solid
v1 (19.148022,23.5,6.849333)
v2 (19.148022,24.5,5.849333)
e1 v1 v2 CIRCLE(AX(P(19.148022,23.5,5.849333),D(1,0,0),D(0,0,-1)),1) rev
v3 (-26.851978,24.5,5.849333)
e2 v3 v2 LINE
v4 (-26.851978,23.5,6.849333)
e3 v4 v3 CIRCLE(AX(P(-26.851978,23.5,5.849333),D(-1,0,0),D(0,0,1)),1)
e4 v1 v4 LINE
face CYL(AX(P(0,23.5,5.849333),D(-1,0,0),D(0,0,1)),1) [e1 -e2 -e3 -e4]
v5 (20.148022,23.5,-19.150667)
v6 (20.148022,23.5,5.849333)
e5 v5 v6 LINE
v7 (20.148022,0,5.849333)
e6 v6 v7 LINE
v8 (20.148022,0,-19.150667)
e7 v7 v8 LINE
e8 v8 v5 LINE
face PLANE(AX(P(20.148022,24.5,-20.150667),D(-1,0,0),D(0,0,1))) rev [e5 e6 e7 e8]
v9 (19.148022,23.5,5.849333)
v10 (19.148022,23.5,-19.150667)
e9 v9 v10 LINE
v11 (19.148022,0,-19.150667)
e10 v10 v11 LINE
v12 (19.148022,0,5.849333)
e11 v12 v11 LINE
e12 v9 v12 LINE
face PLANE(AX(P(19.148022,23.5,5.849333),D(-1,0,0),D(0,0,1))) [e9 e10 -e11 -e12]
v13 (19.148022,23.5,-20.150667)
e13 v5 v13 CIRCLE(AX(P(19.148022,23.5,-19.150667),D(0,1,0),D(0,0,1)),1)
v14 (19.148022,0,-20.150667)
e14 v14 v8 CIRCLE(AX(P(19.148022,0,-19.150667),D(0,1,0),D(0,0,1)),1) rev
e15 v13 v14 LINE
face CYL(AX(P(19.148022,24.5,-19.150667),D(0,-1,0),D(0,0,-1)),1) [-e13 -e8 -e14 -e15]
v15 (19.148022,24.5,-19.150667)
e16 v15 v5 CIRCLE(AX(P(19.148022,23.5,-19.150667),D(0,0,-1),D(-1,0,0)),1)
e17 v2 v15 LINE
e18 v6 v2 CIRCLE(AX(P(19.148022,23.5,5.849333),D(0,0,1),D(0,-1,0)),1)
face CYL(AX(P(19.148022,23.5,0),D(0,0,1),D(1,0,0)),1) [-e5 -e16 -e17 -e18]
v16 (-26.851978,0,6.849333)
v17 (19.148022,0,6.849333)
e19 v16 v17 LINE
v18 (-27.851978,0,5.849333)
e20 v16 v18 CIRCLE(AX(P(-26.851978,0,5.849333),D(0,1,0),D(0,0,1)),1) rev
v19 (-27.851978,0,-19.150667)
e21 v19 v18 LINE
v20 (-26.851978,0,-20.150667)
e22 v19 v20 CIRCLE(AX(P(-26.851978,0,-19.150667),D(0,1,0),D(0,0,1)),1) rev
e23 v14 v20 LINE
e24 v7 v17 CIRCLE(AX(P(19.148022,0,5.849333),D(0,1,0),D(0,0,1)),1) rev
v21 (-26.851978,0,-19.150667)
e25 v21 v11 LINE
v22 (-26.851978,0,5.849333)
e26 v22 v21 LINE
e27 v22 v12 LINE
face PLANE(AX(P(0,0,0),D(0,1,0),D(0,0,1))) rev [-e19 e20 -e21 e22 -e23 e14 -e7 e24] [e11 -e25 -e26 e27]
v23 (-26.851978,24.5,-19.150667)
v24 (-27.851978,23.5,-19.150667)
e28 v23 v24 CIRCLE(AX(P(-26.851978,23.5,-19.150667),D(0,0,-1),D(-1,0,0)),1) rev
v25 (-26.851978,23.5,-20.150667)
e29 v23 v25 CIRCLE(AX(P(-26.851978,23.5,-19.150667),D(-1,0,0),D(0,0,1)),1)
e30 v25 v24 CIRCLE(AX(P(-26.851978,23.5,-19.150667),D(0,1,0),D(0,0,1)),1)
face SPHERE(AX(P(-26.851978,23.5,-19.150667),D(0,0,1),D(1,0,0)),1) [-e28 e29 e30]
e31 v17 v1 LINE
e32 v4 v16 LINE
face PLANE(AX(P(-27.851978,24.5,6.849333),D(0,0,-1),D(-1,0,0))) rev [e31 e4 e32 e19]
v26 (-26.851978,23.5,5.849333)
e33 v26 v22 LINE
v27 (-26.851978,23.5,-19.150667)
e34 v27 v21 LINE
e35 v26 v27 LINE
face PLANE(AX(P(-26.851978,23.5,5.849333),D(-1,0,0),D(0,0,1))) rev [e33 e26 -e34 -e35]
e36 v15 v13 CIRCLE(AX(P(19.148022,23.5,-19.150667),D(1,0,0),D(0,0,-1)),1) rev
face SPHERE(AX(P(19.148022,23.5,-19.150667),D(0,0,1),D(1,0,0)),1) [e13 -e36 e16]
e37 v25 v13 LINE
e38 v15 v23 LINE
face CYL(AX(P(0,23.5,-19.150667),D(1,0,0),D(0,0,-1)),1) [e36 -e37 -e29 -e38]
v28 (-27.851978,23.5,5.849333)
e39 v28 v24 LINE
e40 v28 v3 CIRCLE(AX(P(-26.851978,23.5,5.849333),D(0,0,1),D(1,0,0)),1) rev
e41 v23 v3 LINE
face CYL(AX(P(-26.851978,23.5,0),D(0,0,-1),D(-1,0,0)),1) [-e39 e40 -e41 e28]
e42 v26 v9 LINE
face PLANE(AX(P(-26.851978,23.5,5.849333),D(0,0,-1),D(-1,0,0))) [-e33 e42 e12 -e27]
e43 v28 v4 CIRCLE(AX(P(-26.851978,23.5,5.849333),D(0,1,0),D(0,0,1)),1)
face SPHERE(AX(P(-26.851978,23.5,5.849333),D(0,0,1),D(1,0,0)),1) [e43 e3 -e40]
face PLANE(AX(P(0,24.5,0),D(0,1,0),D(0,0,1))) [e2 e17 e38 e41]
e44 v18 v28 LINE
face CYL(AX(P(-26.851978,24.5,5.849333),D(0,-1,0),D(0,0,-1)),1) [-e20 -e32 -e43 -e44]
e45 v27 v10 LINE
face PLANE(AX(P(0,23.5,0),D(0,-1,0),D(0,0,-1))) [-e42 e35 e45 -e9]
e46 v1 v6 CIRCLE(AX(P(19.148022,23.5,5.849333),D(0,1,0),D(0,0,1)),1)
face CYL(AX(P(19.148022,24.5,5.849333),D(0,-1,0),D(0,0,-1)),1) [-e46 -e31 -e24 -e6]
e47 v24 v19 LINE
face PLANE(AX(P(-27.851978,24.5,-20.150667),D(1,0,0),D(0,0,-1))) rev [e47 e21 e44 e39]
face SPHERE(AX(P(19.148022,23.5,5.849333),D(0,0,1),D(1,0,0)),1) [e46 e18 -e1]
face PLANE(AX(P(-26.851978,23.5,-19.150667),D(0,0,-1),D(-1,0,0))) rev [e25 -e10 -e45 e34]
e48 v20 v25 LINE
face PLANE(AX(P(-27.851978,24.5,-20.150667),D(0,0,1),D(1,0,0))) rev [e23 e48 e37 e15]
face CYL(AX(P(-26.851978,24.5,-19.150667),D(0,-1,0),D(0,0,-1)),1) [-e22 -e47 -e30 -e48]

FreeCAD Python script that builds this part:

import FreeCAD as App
import Part
import Sketcher

V = App.Vector
Q = App.Units.Quantity


def edges_at(feature, points):
    """Names of the edges that pass closest to the given points."""
    edges = feature.Shape.Edges
    near = lambda p: min(range(len(edges)), key=lambda i: edges[i].distToShape(Part.Vertex(*p))[0])
    return sorted({f"Edge{near(p) + 1}" for p in points})


def add_polygon(sketch, points):
    """Adds a closed chain of lines whose ends are joined by coincident constraints."""
    first, n = sketch.GeometryCount, len(points)
    for a, b in zip(points, points[1:] + points[:1]):
        sketch.addGeometry(Part.LineSegment(App.Vector(*a, 0), App.Vector(*b, 0)), False)
    for i in range(n):
        sketch.addConstraint(Sketcher.Constraint("Coincident", first + i, 2, first + (i + 1) % n, 1))

doc = App.newDocument("Part")
body = doc.addObject("PartDesign::Body", "Body")

# Sketch on XZ plane
sketch1 = body.newObject("Sketcher::SketchObject", "Sketch")
sketch1.AttachmentSupport = (doc.getObject("XZ_Plane"), [""])
sketch1.MapMode = "FlatFace"
add_polygon(sketch1, [(-27.851978, -20.150667), (-27.851978, 6.849333), (20.148022, 6.849333), (20.148022, -20.150667)])  # lines 0-3
sketch1.addConstraint([
    Sketcher.Constraint("Vertical", 0),
    Sketcher.Constraint("Horizontal", 1),
    Sketcher.Constraint("Vertical", 2),
    Sketcher.Constraint("Horizontal", 3),
    Sketcher.Constraint("DistanceX", 1, 1, 1, 2, Q("48 mm")),
    Sketcher.Constraint("DistanceY", 0, 1, 0, 2, Q("27 mm")),
    Sketcher.Constraint("DistanceX", 0, 2, -1, 1, Q("27.851978 mm")),
    Sketcher.Constraint("DistanceY", -1, 1, 0, 2, Q("6.849333 mm")),
])
pad1 = body.newObject("PartDesign::Pad", "Pad")
pad1.Profile = sketch1
pad1.Length = 24.5
pad1.Reversed = True
doc.recompute()

fillet = body.newObject("PartDesign::Fillet", "Fillet")
fillet.Base = (pad1, edges_at(pad1, [
    (20.148, 24.5, -6.651),
    (-3.852, 24.5, -20.151),
    (-27.852, 24.5, -6.651),
    (-3.852, 24.5, 6.849),
    (-27.852, 12.25, -20.151),
    (20.148, 12.25, -20.151),
    (20.148, 12.25, 6.849),
    (-27.852, 12.25, 6.849),
]))
fillet.Radius = 1

# Sketch on XZ plane
sketch2 = body.newObject("Sketcher::SketchObject", "Sketch001")
sketch2.AttachmentSupport = (doc.getObject("XZ_Plane"), [""])
sketch2.MapMode = "FlatFace"
add_polygon(sketch2, [(-26.851978, 5.849333), (-26.851978, -19.150667), (19.148022, -19.150667), (19.148022, 5.849333)])  # lines 0-3
sketch2.addConstraint([
    Sketcher.Constraint("Vertical", 0),
    Sketcher.Constraint("Horizontal", 1),
    Sketcher.Constraint("Vertical", 2),
    Sketcher.Constraint("Horizontal", 3),
    Sketcher.Constraint("DistanceX", 1, 1, 1, 2, Q("46 mm")),
    Sketcher.Constraint("DistanceY", 0, 2, 0, 1, Q("25 mm")),
    Sketcher.Constraint("DistanceX", 0, 2, -1, 1, Q("26.851978 mm")),
    Sketcher.Constraint("DistanceY", 0, 2, -1, 1, Q("19.150667 mm")),
])
pocket1 = body.newObject("PartDesign::Pocket", "Pocket")
pocket1.Profile = sketch2
pocket1.Length = 23.5

doc.recompute()
